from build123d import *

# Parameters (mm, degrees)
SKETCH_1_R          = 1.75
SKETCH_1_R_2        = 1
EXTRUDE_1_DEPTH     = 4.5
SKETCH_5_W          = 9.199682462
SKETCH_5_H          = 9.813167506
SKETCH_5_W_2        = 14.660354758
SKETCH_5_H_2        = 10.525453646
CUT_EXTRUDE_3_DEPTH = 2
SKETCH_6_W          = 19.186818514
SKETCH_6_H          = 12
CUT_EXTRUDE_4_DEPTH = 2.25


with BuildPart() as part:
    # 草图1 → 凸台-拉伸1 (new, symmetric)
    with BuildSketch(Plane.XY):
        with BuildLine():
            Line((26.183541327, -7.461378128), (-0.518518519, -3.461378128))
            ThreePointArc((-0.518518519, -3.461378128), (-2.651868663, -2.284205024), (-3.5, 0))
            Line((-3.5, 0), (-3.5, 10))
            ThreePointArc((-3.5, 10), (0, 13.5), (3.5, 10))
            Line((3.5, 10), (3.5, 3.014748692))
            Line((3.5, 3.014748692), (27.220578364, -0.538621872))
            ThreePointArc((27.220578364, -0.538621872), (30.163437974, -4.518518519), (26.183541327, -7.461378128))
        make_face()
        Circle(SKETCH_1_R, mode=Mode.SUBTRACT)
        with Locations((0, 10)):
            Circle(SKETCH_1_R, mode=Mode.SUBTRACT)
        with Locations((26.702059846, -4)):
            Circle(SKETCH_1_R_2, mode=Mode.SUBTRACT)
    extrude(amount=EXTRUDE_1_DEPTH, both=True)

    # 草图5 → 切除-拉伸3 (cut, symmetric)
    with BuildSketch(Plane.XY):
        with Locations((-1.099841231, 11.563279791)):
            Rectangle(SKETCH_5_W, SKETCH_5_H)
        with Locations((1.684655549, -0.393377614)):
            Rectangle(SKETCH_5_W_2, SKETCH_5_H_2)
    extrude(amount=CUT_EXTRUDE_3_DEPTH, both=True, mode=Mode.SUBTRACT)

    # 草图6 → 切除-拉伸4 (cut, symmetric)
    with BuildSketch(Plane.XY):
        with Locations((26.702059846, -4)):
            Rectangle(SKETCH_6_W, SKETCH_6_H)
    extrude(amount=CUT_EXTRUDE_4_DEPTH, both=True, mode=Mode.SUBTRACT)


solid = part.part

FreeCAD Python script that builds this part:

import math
import FreeCAD as App
import Part
import Sketcher

doc = App.newDocument("Part")
body = doc.addObject("PartDesign::Body", "Body")

# Sketch on XY plane
sketch1 = body.newObject("Sketcher::SketchObject", "Sketch")
sketch1.AttachmentSupport = (doc.getObject("XY_Plane"), [""])
sketch1.MapMode = "FlatFace"
sketch1.addGeometry([
    Part.LineSegment(App.Vector(-0.5, -3.5, 0), App.Vector(26.2, -7.5, 0)),  # 0
    Part.ArcOfCircle(Part.Circle(App.Vector(26.7, -4, 0), App.Vector(0, 0, 1), 3.5), math.radians(-99), math.radians(81)),  # 1
    Part.LineSegment(App.Vector(27.2, -0.5, 0), App.Vector(3.5, 3, 0)),  # 2
    Part.LineSegment(App.Vector(3.5, 3, 0), App.Vector(3.5, 10, 0)),  # 3
    Part.ArcOfCircle(Part.Circle(App.Vector(0, 10, 0), App.Vector(0, 0, 1), 3.5), math.radians(0), math.radians(180)),  # 4
    Part.LineSegment(App.Vector(-3.5, 10, 0), App.Vector(-3.5, 0, 0)),  # 5
    Part.ArcOfCircle(Part.Circle(App.Vector(0, 0, 0), App.Vector(0, 0, 1), 3.5), math.radians(-180), math.radians(-99)),  # 6
    Part.Circle(App.Vector(26.7, -4, 0), App.Vector(0, 0, 1), 1),  # 7
    Part.Circle(App.Vector(0, 0, 0), App.Vector(0, 0, 1), 1.8),  # 8
    Part.Circle(App.Vector(0, 10, 0), App.Vector(0, 0, 1), 1.8),  # 9
], False)
sketch1.addConstraint([
    Sketcher.Constraint("Tangent", 0, 2, 1, 1),
    Sketcher.Constraint("Tangent", 1, 2, 2, 1),
    Sketcher.Constraint("Coincident", 2, 2, 3, 1),
    Sketcher.Constraint("Tangent", 3, 2, 4, 1),
    Sketcher.Constraint("Tangent", 4, 2, 5, 1),
    Sketcher.Constraint("Tangent", 5, 2, 6, 1),
    Sketcher.Constraint("Tangent", 6, 2, 0, 1),
    Sketcher.Constraint("Vertical", 3),
    Sketcher.Constraint("Vertical", 5),
    Sketcher.Constraint("Coincident", 6, 3, -1, 1),
    Sketcher.Constraint("Coincident", 8, 3, -1, 1),
    Sketcher.Constraint("Coincident", 7, 3, 1, 3),
    Sketcher.Constraint("Coincident", 9, 3, 4, 3),
    Sketcher.Constraint("Equal", 1, 4),
    Sketcher.Constraint("Equal", 4, 6),
    Sketcher.Constraint("Equal", 8, 9),
    Sketcher.Constraint("Parallel", 0, 2),
    Sketcher.Constraint("Diameter", 7, 2.0),
    Sketcher.Constraint("Diameter", 8, 3.5),
    Sketcher.Constraint("Radius", 1, 3.5),
    Sketcher.Constraint("DistanceY", 5, 2, 5, 1, 10.0),
    Sketcher.Constraint("Distance", 0, 27.0),
    Sketcher.Constraint("DistanceY", 1, 3, -1, 1, 4.0),
])
pad1 = body.newObject("PartDesign::Pad", "Pad")
pad1.Profile = sketch1
pad1.Length = 9
pad1.Midplane = True

# Sketch on XY plane
sketch2 = body.newObject("Sketcher::SketchObject", "Sketch001")
sketch2.AttachmentSupport = (doc.getObject("XY_Plane"), [""])
sketch2.MapMode = "FlatFace"
sketch2.addGeometry([
    Part.LineSegment(App.Vector(-6, 16, 0), App.Vector(-6, 7, 0)),  # 0
    Part.LineSegment(App.Vector(-6, 7, 0), App.Vector(4, 7, 0)),  # 1
    Part.LineSegment(App.Vector(4, 7, 0), App.Vector(4, 16, 0)),  # 2
    Part.LineSegment(App.Vector(4, 16, 0), App.Vector(-6, 16, 0)),  # 3
    Part.LineSegment(App.Vector(-6, 5, 0), App.Vector(-6, -6, 0)),  # 4
    Part.LineSegment(App.Vector(-6, -6, 0), App.Vector(9, -6, 0)),  # 5
    Part.LineSegment(App.Vector(9, -6, 0), App.Vector(9, 5, 0)),  # 6
    Part.LineSegment(App.Vector(9, 5, 0), App.Vector(-6, 5, 0)),  # 7
], False)
sketch2.addConstraint([
    Sketcher.Constraint("Coincident", 0, 2, 1, 1),
    Sketcher.Constraint("Coincident", 1, 2, 2, 1),
    Sketcher.Constraint("Coincident", 2, 2, 3, 1),
    Sketcher.Constraint("Coincident", 3, 2, 0, 1),
    Sketcher.Constraint("Coincident", 4, 2, 5, 1),
    Sketcher.Constraint("Coincident", 5, 2, 6, 1),
    Sketcher.Constraint("Coincident", 6, 2, 7, 1),
    Sketcher.Constraint("Coincident", 7, 2, 4, 1),
    Sketcher.Constraint("Vertical", 0),
    Sketcher.Constraint("Horizontal", 1),
    Sketcher.Constraint("Vertical", 2),
    Sketcher.Constraint("Horizontal", 3),
    Sketcher.Constraint("Vertical", 4),
    Sketcher.Constraint("Horizontal", 5),
    Sketcher.Constraint("Vertical", 6),
    Sketcher.Constraint("Horizontal", 7),
    Sketcher.Constraint("DistanceX", -1, 1, 1, 2, 3.5),
    Sketcher.Constraint("DistanceY", 4, 2, 0, 2, 12.3128),
    Sketcher.Constraint("DistanceX", 1, 1, 1, 2, 9.199682),
    Sketcher.Constraint("DistanceX", 5, 1, 5, 2, 14.660355),
    Sketcher.Constraint("DistanceY", 0, 2, 0, 1, 9.813168),
    Sketcher.Constraint("DistanceY", 4, 2, 4, 1, 10.525454),
    Sketcher.Constraint("DistanceX", 4, 2, -1, 1, 5.645522),
    Sketcher.Constraint("DistanceY", -1, 1, 6, 2, 4.869349),
])
pocket1 = body.newObject("PartDesign::Pocket", "Pocket")
pocket1.Profile = sketch2
pocket1.Length = 4
pocket1.Midplane = True

# Sketch on XY plane
sketch3 = body.newObject("Sketcher::SketchObject", "Sketch002")
sketch3.AttachmentSupport = (doc.getObject("XY_Plane"), [""])
sketch3.MapMode = "FlatFace"
sketch3.addGeometry([
    Part.LineSegment(App.Vector(17, 2, 0), App.Vector(17, -10, 0)),
    Part.LineSegment(App.Vector(17, -10, 0), App.Vector(36, -10, 0)),
    Part.LineSegment(App.Vector(36, -10, 0), App.Vector(36, 2, 0)),
    Part.LineSegment(App.Vector(36, 2, 0), App.Vector(17, 2, 0)),
], False)
sketch3.addConstraint([
    Sketcher.Constraint("Coincident", 0, 2, 1, 1),
    Sketcher.Constraint("Coincident", 1, 2, 2, 1),
    Sketcher.Constraint("Coincident", 2, 2, 3, 1),
    Sketcher.Constraint("Coincident", 3, 2, 0, 1),
    Sketcher.Constraint("Vertical", 0),
    Sketcher.Constraint("Horizontal", 1),
    Sketcher.Constraint("Vertical", 2),
    Sketcher.Constraint("Horizontal", 3),
    Sketcher.Constraint("DistanceY", 0, 2, 0, 1, 12.0),
    Sketcher.Constraint("DistanceY", 0, 2, -1, 1, 10.0),
    Sketcher.Constraint("DistanceX", 1, 1, 1, 2, 19.186819),
    Sketcher.Constraint("DistanceX", -1, 1, 0, 2, 17.108651),
])
pocket2 = body.newObject("PartDesign::Pocket", "Pocket001")
pocket2.Profile = sketch3
pocket2.Length = 4.5
pocket2.Midplane = True

doc.recompute()
